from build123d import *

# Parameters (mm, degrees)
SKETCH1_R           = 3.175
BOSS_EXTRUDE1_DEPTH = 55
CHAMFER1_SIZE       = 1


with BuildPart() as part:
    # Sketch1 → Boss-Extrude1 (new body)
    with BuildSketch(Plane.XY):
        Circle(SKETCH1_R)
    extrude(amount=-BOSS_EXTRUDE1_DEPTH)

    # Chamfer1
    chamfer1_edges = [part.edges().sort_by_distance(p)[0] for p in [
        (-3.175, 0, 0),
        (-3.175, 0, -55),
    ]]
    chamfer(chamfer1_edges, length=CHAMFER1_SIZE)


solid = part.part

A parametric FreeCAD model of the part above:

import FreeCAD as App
import Part
import Sketcher
Q = App.Units.Quantity


def edges_at(feature, points):
    """Names of the edges that pass closest to the given points."""
    edges = feature.Shape.Edges
    near = lambda p: min(range(len(edges)), key=lambda i: edges[i].distToShape(Part.Vertex(*p))[0])
    return sorted({f"Edge{near(p) + 1}" for p in points})

doc = App.newDocument("Part")
body = doc.addObject("PartDesign::Body", "Body")

sketch1 = body.newObject("Sketcher::SketchObject", "Sketch")
sketch1.AttachmentSupport = (doc.getObject("XY_Plane"), [""])
sketch1.MapMode = "FlatFace"
sketch1.addGeometry(Part.Circle(App.Vector(0, 0, 0), App.Vector(0, 0, 1), 3.175), False)
sketch1.addConstraint([
    Sketcher.Constraint("Coincident", 0, 3, -1, 1),
    Sketcher.Constraint("Diameter", 0, Q("6.35 mm")),
])
pad1 = body.newObject("PartDesign::Pad", "Pad")
pad1.Profile = sketch1
pad1.Length = 55
pad1.Reversed = True
doc.recompute()

chamfer = body.newObject("PartDesign::Chamfer", "Chamfer")
chamfer.Base = (pad1, edges_at(pad1, [(-3.175, 0, 0), (-3.175, 0, -55)]))
chamfer.Size = 1

doc.recompute()
